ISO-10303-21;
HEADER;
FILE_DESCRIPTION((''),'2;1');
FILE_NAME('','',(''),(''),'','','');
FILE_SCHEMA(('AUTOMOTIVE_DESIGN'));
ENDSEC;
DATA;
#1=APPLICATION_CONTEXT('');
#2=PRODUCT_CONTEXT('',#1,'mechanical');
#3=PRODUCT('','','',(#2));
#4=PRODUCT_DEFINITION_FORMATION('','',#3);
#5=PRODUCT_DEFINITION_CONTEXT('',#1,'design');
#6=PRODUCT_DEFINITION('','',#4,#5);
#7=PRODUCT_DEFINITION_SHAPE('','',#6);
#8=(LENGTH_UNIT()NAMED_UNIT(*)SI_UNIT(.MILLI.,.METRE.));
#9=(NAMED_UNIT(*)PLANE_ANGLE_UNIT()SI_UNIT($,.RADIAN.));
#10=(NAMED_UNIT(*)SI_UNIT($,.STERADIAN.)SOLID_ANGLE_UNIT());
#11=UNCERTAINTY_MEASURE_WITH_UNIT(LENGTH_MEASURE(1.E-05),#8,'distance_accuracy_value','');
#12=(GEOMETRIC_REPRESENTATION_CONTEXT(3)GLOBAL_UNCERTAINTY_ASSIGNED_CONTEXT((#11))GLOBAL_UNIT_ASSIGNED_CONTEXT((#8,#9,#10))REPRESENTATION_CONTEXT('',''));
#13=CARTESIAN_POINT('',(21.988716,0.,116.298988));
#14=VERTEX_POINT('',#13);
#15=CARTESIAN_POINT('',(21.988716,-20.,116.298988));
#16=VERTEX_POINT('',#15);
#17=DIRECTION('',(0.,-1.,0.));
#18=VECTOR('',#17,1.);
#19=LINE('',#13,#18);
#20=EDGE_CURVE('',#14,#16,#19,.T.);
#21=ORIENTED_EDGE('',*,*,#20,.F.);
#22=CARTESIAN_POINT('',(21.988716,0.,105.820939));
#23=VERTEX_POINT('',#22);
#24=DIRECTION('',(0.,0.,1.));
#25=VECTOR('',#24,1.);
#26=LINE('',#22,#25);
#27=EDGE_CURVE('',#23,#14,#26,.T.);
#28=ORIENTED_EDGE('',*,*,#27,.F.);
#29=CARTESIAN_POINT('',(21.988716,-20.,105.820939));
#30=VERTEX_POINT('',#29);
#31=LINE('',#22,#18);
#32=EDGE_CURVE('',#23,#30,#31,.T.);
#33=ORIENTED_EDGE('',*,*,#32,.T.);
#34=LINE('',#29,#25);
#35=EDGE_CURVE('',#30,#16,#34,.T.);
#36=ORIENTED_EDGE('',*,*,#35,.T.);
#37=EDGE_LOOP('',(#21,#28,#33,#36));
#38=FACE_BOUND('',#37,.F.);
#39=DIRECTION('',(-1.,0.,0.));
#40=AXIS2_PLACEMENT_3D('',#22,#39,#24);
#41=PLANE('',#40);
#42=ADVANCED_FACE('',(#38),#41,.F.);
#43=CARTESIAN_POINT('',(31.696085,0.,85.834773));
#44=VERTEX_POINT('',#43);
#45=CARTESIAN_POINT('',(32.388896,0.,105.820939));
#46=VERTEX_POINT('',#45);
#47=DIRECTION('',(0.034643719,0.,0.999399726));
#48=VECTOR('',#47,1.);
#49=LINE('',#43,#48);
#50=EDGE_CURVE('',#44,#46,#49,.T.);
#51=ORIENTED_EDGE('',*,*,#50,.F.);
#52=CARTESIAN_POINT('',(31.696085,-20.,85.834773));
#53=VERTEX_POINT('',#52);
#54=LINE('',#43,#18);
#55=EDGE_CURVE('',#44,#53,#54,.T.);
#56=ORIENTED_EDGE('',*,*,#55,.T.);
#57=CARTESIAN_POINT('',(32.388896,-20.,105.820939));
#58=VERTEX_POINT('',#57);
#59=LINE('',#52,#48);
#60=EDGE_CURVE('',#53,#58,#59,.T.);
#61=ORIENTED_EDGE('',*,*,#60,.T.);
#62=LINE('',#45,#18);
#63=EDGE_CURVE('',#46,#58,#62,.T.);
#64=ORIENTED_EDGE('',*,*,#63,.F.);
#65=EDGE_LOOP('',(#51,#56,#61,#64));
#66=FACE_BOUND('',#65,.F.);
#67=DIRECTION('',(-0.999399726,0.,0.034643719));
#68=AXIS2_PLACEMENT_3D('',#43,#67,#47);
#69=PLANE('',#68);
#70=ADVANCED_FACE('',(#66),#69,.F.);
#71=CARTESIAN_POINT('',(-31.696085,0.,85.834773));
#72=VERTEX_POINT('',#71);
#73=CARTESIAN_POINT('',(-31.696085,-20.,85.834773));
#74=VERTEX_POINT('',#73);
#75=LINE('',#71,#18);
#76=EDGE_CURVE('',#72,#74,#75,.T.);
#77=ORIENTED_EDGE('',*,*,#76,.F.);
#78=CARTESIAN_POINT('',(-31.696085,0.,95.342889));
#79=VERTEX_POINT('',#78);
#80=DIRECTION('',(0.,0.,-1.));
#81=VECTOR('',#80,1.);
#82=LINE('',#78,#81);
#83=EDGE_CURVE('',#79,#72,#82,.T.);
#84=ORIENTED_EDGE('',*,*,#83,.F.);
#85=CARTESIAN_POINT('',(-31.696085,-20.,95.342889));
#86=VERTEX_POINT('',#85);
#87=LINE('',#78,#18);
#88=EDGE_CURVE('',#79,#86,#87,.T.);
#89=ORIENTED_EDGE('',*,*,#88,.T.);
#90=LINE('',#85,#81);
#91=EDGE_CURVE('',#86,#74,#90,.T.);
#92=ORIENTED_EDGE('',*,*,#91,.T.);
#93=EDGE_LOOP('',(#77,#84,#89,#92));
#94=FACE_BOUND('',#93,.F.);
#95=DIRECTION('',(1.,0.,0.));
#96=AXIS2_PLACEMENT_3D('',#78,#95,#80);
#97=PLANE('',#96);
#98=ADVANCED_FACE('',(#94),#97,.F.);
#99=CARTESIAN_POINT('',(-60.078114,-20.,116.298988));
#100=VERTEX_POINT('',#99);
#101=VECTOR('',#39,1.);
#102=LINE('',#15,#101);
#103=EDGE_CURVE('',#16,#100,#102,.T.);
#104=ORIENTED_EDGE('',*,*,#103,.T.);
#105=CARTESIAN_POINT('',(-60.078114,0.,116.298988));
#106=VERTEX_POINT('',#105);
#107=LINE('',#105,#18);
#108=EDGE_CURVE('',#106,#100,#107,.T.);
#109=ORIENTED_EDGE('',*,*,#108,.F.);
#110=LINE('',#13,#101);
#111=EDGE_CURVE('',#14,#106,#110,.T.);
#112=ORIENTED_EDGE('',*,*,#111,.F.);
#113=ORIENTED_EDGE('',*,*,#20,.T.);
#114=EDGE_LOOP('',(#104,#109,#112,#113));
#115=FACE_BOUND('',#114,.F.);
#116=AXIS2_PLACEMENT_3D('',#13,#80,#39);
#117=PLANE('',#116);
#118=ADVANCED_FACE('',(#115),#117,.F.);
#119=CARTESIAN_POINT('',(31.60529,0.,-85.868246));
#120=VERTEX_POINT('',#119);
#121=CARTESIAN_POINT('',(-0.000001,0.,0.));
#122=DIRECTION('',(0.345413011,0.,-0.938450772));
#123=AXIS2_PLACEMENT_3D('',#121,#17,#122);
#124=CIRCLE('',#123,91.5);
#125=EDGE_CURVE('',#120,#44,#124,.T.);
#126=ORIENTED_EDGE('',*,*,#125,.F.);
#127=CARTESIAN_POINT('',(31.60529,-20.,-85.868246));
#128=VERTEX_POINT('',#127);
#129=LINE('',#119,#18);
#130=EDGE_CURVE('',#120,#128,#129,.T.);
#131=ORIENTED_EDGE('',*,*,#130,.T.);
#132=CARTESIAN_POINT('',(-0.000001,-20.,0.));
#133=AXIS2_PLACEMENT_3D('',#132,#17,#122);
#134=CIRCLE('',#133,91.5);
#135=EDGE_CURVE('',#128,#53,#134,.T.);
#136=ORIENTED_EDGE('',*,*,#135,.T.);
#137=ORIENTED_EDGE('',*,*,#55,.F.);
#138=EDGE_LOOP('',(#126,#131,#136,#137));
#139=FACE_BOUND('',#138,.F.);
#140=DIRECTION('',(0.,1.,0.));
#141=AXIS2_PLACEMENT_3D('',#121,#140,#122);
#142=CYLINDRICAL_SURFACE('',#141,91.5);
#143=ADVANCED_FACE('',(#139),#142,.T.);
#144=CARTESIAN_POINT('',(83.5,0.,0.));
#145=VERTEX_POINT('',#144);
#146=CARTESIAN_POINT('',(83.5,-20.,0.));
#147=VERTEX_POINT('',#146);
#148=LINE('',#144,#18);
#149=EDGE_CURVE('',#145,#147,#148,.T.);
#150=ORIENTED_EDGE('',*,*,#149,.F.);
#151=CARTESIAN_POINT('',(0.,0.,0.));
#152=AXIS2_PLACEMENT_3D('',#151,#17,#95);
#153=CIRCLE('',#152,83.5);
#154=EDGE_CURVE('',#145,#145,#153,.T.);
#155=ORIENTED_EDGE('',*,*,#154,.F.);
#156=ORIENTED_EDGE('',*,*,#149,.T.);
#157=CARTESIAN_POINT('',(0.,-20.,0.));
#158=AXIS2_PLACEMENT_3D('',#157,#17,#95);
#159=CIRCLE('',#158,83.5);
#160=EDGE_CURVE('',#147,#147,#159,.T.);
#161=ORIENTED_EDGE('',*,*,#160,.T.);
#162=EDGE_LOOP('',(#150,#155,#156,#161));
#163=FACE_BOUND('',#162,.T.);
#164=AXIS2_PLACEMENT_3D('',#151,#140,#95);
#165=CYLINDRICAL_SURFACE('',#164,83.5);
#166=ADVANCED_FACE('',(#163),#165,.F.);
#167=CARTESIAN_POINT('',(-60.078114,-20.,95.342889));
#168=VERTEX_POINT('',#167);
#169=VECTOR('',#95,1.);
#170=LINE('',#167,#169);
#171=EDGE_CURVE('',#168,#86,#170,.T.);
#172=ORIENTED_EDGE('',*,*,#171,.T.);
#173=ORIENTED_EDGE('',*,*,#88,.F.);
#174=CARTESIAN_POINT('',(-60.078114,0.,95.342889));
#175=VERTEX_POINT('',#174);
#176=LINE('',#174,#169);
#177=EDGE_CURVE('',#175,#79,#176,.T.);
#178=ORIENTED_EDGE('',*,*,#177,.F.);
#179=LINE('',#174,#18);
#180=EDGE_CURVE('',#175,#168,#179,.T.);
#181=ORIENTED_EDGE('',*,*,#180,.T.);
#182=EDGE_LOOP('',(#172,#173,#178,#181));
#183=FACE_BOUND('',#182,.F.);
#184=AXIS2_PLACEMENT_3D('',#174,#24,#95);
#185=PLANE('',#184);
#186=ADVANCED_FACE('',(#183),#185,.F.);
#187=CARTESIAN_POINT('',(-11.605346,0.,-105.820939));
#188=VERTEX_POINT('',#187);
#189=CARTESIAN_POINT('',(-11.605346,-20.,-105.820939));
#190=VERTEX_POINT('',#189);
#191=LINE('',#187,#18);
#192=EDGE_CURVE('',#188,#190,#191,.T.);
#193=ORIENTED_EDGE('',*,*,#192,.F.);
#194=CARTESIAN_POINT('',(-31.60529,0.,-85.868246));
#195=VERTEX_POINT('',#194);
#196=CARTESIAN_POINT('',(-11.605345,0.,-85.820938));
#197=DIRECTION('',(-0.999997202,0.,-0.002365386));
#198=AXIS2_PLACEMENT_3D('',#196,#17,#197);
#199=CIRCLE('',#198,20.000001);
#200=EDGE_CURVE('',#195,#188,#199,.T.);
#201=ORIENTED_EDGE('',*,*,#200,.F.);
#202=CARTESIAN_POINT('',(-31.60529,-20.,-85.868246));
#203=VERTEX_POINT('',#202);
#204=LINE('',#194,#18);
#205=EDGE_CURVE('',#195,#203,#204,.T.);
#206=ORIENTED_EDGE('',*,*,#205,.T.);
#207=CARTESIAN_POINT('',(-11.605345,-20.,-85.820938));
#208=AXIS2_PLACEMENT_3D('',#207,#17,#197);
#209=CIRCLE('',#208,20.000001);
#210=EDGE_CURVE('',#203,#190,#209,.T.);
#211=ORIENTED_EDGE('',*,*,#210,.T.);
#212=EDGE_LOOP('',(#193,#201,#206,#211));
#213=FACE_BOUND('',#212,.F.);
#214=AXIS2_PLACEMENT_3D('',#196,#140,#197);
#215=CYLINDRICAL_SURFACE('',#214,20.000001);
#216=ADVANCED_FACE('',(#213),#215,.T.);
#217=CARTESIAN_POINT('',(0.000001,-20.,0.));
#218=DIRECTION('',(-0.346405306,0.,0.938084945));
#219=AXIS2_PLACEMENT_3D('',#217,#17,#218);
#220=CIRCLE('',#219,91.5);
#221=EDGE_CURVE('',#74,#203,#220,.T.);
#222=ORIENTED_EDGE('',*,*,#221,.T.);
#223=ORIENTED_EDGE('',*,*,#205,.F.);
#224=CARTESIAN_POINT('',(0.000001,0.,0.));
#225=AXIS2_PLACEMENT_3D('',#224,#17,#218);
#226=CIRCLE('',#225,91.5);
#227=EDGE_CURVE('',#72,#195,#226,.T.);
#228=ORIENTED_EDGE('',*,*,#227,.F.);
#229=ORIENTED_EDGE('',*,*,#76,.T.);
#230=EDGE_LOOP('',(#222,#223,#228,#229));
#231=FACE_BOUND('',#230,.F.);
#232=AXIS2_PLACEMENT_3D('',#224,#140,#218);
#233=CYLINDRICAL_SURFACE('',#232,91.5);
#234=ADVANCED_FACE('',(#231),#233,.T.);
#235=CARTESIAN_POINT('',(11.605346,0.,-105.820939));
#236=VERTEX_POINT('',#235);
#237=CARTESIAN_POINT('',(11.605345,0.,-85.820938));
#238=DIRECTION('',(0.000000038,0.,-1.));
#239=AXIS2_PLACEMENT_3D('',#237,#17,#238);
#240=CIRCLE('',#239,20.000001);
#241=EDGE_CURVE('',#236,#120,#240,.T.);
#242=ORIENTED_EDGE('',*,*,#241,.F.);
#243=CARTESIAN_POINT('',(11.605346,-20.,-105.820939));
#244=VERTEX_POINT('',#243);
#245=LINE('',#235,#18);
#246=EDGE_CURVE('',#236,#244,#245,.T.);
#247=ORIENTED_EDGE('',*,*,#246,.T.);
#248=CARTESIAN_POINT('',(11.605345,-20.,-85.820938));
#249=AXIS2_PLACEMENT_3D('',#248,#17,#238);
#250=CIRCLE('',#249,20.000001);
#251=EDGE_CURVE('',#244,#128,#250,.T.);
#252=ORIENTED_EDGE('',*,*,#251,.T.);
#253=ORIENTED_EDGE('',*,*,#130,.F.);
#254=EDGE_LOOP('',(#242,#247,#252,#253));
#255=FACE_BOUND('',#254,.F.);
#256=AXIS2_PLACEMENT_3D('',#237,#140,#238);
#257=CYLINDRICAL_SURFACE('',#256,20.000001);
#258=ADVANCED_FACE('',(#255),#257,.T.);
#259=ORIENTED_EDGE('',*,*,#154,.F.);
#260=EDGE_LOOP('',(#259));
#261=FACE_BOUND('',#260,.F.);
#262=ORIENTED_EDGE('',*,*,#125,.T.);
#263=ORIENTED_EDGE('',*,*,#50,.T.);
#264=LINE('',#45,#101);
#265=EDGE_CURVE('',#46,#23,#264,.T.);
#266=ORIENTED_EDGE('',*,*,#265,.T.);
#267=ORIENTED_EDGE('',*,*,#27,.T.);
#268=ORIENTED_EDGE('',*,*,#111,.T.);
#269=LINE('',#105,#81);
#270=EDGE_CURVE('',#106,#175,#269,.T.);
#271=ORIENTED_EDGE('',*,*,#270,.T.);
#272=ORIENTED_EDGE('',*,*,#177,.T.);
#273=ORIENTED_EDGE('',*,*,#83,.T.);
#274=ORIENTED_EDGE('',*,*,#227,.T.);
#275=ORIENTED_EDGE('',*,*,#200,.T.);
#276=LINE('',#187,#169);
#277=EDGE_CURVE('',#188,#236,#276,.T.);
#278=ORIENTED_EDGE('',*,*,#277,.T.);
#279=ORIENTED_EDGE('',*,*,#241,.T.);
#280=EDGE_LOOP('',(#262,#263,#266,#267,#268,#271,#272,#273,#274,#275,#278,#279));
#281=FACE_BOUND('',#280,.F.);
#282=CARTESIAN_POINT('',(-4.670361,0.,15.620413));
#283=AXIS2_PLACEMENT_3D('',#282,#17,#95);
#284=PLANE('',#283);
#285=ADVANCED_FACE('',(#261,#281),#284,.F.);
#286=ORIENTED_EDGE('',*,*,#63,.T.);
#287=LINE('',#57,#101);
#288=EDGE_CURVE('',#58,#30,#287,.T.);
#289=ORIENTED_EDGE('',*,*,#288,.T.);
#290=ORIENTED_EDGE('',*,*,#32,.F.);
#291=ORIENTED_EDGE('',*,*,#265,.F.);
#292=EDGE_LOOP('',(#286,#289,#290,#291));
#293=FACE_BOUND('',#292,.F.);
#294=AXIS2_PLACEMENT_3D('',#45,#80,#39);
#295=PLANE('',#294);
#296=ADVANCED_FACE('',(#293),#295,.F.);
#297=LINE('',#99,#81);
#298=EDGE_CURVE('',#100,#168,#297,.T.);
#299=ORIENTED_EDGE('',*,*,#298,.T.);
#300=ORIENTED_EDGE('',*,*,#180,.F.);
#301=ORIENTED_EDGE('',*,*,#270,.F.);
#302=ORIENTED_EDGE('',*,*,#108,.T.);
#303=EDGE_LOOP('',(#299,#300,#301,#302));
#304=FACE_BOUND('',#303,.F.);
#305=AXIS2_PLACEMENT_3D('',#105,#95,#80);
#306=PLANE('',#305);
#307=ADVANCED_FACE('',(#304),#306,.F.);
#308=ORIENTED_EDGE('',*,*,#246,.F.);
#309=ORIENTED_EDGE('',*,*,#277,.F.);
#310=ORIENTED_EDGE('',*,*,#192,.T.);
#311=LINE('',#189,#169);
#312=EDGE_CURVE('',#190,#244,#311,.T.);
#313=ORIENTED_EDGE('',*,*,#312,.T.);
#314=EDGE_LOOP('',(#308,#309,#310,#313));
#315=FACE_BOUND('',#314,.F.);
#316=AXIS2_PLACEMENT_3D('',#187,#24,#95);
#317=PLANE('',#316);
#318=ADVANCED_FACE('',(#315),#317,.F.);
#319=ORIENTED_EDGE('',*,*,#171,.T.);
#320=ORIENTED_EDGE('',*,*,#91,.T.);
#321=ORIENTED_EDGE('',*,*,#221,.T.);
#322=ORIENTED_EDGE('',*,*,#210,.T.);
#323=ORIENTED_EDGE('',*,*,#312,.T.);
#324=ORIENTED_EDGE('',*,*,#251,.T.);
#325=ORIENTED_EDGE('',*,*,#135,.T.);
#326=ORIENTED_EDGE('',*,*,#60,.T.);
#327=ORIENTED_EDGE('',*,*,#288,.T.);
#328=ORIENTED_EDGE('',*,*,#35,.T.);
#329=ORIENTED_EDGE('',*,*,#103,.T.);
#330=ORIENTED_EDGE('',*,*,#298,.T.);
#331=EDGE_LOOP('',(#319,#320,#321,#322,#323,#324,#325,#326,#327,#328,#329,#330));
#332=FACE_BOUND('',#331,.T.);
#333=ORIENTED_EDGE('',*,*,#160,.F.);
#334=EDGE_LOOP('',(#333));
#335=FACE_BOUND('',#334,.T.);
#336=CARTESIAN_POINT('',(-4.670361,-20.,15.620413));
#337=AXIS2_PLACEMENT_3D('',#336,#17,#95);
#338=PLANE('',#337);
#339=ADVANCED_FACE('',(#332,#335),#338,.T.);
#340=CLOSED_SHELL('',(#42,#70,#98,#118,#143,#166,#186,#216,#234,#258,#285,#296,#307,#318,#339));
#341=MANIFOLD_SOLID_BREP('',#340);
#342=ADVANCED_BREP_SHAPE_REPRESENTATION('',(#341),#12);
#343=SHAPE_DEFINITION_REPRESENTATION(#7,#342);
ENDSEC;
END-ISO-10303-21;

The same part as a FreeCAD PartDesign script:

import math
import FreeCAD as App
import Part
import Sketcher

doc = App.newDocument("Part")
params = doc.addObject("Spreadsheet::Sheet", "Params")
for row, (alias, value) in enumerate([
    ("sketch1_diameter", "167 mm"),
    ("sketch1_radius", "20.000001 mm"),
    ("sketch1_radius2", "91.5 mm"),
    ("pad1_length", "20 mm"),
], start=1):
    params.set(f"A{row}", alias)
    params.set(f"B{row}", "=" + value)
    params.setAlias(f"B{row}", alias)

body = doc.addObject("PartDesign::Body", "Body")

# Sketch on XZ plane
sketch1 = body.newObject("Sketcher::SketchObject", "Sketch")
sketch1.AttachmentSupport = (doc.getObject("XZ_Plane"), [""])
sketch1.MapMode = "FlatFace"
sketch1.addGeometry([
    Part.ArcOfCircle(Part.Circle(App.Vector(-11.605345, -85.820938, 0), App.Vector(0, 0, 1), 20.000001), math.radians(-179.864473), math.radians(-90.000002)),  # 0
    Part.LineSegment(App.Vector(-11.605346, -105.820939, 0), App.Vector(11.605346, -105.820939, 0)),  # 1
    Part.ArcOfCircle(Part.Circle(App.Vector(11.605345, -85.820938, 0), App.Vector(0, 0, 1), 20.000001), math.radians(-89.999998), math.radians(-0.135527)),  # 2
    Part.ArcOfCircle(Part.Circle(App.Vector(-0.000001, 0, 0), App.Vector(0, 0, 1), 91.5), math.radians(-69.79299), math.radians(69.732395)),  # 3
    Part.LineSegment(App.Vector(31.696085, 85.834773, 0), App.Vector(32.388896, 105.820939, 0)),  # 4
    Part.LineSegment(App.Vector(32.388896, 105.820939, 0), App.Vector(21.988716, 105.820939, 0)),  # 5
    Part.LineSegment(App.Vector(21.988716, 105.820939, 0), App.Vector(21.988716, 116.298988, 0)),  # 6
    Part.LineSegment(App.Vector(21.988716, 116.298988, 0), App.Vector(-60.078114, 116.298988, 0)),  # 7
    Part.LineSegment(App.Vector(-60.078114, 116.298988, 0), App.Vector(-60.078114, 95.342889, 0)),  # 8
    Part.LineSegment(App.Vector(-60.078114, 95.342889, 0), App.Vector(-31.696085, 95.342889, 0)),  # 9
    Part.LineSegment(App.Vector(-31.696085, 95.342889, 0), App.Vector(-31.696085, 85.834773, 0)),  # 10
    Part.ArcOfCircle(Part.Circle(App.Vector(0.000001, 0, 0), App.Vector(0, 0, 1), 91.5), math.radians(110.267605), math.radians(249.79299)),  # 11
    Part.Circle(App.Vector(0, 0, 0), App.Vector(0, 0, 1), 83.5),  # 12
], False)
sketch1.addConstraint([
    Sketcher.Constraint("Tangent", 0, 2, 1, 1),
    Sketcher.Constraint("Tangent", 1, 2, 2, 1),
    Sketcher.Constraint("Coincident", 2, 2, 3, 1),
    Sketcher.Constraint("Coincident", 3, 2, 4, 1),
    Sketcher.Constraint("Coincident", 4, 2, 5, 1),
    Sketcher.Constraint("Coincident", 5, 2, 6, 1),
    Sketcher.Constraint("Coincident", 6, 2, 7, 1),
    Sketcher.Constraint("Coincident", 7, 2, 8, 1),
    Sketcher.Constraint("Coincident", 8, 2, 9, 1),
    Sketcher.Constraint("Coincident", 9, 2, 10, 1),
    Sketcher.Constraint("Coincident", 10, 2, 11, 1),
    Sketcher.Constraint("Coincident", 11, 2, 0, 1),
    Sketcher.Constraint("Horizontal", 1),
    Sketcher.Constraint("Horizontal", 5),
    Sketcher.Constraint("Vertical", 6),
    Sketcher.Constraint("Horizontal", 7),
    Sketcher.Constraint("Vertical", 8),
    Sketcher.Constraint("Horizontal", 9),
    Sketcher.Constraint("Vertical", 10),
    Sketcher.Constraint("Coincident", 3, 3, -1, 1),
    Sketcher.Constraint("Coincident", 11, 3, -1, 1),
    Sketcher.Constraint("Coincident", 12, 3, -1, 1),
    Sketcher.Constraint("Equal", 0, 2),
    Sketcher.Constraint("Equal", 3, 11),
    Sketcher.Constraint("Horizontal", 3, 2, 10, 2),
    Sketcher.Constraint("Horizontal", 2, 2, 11, 2),
    Sketcher.Constraint("Diameter", 12, 167.0),
    Sketcher.Constraint("Radius", 0, 20.000001),
    Sketcher.Constraint("Radius", 3, 91.5),
    Sketcher.Constraint("DistanceY", 8, 2, 8, 1, 20.956099),
    Sketcher.Constraint("DistanceX", 5, 2, 5, 1, 10.40018),
    Sketcher.Constraint("DistanceX", 7, 2, 7, 1, 82.06683),
    Sketcher.Constraint("DistanceX", 9, 1, 9, 2, 28.382029),
    Sketcher.Constraint("DistanceY", 6, 1, 6, 2, 10.478049),
    Sketcher.Constraint("DistanceX", 7, 2, 3, 2, 91.774199),
    Sketcher.Constraint("Distance", 4, 19.99817),
    Sketcher.Constraint("DistanceX", 1, 1, 1, 2, 23.210692),
    Sketcher.Constraint("DistanceY", 0, 3, -1, 1, 85.820938),
])
sketch1.setExpression("Constraints[26]", "Params.sketch1_diameter")
sketch1.setExpression("Constraints[27]", "Params.sketch1_radius")
sketch1.setExpression("Constraints[28]", "Params.sketch1_radius2")
pad1 = body.newObject("PartDesign::Pad", "Pad")
pad1.Profile = sketch1
pad1.setExpression("Length", "Params.pad1_length")

doc.recompute()
